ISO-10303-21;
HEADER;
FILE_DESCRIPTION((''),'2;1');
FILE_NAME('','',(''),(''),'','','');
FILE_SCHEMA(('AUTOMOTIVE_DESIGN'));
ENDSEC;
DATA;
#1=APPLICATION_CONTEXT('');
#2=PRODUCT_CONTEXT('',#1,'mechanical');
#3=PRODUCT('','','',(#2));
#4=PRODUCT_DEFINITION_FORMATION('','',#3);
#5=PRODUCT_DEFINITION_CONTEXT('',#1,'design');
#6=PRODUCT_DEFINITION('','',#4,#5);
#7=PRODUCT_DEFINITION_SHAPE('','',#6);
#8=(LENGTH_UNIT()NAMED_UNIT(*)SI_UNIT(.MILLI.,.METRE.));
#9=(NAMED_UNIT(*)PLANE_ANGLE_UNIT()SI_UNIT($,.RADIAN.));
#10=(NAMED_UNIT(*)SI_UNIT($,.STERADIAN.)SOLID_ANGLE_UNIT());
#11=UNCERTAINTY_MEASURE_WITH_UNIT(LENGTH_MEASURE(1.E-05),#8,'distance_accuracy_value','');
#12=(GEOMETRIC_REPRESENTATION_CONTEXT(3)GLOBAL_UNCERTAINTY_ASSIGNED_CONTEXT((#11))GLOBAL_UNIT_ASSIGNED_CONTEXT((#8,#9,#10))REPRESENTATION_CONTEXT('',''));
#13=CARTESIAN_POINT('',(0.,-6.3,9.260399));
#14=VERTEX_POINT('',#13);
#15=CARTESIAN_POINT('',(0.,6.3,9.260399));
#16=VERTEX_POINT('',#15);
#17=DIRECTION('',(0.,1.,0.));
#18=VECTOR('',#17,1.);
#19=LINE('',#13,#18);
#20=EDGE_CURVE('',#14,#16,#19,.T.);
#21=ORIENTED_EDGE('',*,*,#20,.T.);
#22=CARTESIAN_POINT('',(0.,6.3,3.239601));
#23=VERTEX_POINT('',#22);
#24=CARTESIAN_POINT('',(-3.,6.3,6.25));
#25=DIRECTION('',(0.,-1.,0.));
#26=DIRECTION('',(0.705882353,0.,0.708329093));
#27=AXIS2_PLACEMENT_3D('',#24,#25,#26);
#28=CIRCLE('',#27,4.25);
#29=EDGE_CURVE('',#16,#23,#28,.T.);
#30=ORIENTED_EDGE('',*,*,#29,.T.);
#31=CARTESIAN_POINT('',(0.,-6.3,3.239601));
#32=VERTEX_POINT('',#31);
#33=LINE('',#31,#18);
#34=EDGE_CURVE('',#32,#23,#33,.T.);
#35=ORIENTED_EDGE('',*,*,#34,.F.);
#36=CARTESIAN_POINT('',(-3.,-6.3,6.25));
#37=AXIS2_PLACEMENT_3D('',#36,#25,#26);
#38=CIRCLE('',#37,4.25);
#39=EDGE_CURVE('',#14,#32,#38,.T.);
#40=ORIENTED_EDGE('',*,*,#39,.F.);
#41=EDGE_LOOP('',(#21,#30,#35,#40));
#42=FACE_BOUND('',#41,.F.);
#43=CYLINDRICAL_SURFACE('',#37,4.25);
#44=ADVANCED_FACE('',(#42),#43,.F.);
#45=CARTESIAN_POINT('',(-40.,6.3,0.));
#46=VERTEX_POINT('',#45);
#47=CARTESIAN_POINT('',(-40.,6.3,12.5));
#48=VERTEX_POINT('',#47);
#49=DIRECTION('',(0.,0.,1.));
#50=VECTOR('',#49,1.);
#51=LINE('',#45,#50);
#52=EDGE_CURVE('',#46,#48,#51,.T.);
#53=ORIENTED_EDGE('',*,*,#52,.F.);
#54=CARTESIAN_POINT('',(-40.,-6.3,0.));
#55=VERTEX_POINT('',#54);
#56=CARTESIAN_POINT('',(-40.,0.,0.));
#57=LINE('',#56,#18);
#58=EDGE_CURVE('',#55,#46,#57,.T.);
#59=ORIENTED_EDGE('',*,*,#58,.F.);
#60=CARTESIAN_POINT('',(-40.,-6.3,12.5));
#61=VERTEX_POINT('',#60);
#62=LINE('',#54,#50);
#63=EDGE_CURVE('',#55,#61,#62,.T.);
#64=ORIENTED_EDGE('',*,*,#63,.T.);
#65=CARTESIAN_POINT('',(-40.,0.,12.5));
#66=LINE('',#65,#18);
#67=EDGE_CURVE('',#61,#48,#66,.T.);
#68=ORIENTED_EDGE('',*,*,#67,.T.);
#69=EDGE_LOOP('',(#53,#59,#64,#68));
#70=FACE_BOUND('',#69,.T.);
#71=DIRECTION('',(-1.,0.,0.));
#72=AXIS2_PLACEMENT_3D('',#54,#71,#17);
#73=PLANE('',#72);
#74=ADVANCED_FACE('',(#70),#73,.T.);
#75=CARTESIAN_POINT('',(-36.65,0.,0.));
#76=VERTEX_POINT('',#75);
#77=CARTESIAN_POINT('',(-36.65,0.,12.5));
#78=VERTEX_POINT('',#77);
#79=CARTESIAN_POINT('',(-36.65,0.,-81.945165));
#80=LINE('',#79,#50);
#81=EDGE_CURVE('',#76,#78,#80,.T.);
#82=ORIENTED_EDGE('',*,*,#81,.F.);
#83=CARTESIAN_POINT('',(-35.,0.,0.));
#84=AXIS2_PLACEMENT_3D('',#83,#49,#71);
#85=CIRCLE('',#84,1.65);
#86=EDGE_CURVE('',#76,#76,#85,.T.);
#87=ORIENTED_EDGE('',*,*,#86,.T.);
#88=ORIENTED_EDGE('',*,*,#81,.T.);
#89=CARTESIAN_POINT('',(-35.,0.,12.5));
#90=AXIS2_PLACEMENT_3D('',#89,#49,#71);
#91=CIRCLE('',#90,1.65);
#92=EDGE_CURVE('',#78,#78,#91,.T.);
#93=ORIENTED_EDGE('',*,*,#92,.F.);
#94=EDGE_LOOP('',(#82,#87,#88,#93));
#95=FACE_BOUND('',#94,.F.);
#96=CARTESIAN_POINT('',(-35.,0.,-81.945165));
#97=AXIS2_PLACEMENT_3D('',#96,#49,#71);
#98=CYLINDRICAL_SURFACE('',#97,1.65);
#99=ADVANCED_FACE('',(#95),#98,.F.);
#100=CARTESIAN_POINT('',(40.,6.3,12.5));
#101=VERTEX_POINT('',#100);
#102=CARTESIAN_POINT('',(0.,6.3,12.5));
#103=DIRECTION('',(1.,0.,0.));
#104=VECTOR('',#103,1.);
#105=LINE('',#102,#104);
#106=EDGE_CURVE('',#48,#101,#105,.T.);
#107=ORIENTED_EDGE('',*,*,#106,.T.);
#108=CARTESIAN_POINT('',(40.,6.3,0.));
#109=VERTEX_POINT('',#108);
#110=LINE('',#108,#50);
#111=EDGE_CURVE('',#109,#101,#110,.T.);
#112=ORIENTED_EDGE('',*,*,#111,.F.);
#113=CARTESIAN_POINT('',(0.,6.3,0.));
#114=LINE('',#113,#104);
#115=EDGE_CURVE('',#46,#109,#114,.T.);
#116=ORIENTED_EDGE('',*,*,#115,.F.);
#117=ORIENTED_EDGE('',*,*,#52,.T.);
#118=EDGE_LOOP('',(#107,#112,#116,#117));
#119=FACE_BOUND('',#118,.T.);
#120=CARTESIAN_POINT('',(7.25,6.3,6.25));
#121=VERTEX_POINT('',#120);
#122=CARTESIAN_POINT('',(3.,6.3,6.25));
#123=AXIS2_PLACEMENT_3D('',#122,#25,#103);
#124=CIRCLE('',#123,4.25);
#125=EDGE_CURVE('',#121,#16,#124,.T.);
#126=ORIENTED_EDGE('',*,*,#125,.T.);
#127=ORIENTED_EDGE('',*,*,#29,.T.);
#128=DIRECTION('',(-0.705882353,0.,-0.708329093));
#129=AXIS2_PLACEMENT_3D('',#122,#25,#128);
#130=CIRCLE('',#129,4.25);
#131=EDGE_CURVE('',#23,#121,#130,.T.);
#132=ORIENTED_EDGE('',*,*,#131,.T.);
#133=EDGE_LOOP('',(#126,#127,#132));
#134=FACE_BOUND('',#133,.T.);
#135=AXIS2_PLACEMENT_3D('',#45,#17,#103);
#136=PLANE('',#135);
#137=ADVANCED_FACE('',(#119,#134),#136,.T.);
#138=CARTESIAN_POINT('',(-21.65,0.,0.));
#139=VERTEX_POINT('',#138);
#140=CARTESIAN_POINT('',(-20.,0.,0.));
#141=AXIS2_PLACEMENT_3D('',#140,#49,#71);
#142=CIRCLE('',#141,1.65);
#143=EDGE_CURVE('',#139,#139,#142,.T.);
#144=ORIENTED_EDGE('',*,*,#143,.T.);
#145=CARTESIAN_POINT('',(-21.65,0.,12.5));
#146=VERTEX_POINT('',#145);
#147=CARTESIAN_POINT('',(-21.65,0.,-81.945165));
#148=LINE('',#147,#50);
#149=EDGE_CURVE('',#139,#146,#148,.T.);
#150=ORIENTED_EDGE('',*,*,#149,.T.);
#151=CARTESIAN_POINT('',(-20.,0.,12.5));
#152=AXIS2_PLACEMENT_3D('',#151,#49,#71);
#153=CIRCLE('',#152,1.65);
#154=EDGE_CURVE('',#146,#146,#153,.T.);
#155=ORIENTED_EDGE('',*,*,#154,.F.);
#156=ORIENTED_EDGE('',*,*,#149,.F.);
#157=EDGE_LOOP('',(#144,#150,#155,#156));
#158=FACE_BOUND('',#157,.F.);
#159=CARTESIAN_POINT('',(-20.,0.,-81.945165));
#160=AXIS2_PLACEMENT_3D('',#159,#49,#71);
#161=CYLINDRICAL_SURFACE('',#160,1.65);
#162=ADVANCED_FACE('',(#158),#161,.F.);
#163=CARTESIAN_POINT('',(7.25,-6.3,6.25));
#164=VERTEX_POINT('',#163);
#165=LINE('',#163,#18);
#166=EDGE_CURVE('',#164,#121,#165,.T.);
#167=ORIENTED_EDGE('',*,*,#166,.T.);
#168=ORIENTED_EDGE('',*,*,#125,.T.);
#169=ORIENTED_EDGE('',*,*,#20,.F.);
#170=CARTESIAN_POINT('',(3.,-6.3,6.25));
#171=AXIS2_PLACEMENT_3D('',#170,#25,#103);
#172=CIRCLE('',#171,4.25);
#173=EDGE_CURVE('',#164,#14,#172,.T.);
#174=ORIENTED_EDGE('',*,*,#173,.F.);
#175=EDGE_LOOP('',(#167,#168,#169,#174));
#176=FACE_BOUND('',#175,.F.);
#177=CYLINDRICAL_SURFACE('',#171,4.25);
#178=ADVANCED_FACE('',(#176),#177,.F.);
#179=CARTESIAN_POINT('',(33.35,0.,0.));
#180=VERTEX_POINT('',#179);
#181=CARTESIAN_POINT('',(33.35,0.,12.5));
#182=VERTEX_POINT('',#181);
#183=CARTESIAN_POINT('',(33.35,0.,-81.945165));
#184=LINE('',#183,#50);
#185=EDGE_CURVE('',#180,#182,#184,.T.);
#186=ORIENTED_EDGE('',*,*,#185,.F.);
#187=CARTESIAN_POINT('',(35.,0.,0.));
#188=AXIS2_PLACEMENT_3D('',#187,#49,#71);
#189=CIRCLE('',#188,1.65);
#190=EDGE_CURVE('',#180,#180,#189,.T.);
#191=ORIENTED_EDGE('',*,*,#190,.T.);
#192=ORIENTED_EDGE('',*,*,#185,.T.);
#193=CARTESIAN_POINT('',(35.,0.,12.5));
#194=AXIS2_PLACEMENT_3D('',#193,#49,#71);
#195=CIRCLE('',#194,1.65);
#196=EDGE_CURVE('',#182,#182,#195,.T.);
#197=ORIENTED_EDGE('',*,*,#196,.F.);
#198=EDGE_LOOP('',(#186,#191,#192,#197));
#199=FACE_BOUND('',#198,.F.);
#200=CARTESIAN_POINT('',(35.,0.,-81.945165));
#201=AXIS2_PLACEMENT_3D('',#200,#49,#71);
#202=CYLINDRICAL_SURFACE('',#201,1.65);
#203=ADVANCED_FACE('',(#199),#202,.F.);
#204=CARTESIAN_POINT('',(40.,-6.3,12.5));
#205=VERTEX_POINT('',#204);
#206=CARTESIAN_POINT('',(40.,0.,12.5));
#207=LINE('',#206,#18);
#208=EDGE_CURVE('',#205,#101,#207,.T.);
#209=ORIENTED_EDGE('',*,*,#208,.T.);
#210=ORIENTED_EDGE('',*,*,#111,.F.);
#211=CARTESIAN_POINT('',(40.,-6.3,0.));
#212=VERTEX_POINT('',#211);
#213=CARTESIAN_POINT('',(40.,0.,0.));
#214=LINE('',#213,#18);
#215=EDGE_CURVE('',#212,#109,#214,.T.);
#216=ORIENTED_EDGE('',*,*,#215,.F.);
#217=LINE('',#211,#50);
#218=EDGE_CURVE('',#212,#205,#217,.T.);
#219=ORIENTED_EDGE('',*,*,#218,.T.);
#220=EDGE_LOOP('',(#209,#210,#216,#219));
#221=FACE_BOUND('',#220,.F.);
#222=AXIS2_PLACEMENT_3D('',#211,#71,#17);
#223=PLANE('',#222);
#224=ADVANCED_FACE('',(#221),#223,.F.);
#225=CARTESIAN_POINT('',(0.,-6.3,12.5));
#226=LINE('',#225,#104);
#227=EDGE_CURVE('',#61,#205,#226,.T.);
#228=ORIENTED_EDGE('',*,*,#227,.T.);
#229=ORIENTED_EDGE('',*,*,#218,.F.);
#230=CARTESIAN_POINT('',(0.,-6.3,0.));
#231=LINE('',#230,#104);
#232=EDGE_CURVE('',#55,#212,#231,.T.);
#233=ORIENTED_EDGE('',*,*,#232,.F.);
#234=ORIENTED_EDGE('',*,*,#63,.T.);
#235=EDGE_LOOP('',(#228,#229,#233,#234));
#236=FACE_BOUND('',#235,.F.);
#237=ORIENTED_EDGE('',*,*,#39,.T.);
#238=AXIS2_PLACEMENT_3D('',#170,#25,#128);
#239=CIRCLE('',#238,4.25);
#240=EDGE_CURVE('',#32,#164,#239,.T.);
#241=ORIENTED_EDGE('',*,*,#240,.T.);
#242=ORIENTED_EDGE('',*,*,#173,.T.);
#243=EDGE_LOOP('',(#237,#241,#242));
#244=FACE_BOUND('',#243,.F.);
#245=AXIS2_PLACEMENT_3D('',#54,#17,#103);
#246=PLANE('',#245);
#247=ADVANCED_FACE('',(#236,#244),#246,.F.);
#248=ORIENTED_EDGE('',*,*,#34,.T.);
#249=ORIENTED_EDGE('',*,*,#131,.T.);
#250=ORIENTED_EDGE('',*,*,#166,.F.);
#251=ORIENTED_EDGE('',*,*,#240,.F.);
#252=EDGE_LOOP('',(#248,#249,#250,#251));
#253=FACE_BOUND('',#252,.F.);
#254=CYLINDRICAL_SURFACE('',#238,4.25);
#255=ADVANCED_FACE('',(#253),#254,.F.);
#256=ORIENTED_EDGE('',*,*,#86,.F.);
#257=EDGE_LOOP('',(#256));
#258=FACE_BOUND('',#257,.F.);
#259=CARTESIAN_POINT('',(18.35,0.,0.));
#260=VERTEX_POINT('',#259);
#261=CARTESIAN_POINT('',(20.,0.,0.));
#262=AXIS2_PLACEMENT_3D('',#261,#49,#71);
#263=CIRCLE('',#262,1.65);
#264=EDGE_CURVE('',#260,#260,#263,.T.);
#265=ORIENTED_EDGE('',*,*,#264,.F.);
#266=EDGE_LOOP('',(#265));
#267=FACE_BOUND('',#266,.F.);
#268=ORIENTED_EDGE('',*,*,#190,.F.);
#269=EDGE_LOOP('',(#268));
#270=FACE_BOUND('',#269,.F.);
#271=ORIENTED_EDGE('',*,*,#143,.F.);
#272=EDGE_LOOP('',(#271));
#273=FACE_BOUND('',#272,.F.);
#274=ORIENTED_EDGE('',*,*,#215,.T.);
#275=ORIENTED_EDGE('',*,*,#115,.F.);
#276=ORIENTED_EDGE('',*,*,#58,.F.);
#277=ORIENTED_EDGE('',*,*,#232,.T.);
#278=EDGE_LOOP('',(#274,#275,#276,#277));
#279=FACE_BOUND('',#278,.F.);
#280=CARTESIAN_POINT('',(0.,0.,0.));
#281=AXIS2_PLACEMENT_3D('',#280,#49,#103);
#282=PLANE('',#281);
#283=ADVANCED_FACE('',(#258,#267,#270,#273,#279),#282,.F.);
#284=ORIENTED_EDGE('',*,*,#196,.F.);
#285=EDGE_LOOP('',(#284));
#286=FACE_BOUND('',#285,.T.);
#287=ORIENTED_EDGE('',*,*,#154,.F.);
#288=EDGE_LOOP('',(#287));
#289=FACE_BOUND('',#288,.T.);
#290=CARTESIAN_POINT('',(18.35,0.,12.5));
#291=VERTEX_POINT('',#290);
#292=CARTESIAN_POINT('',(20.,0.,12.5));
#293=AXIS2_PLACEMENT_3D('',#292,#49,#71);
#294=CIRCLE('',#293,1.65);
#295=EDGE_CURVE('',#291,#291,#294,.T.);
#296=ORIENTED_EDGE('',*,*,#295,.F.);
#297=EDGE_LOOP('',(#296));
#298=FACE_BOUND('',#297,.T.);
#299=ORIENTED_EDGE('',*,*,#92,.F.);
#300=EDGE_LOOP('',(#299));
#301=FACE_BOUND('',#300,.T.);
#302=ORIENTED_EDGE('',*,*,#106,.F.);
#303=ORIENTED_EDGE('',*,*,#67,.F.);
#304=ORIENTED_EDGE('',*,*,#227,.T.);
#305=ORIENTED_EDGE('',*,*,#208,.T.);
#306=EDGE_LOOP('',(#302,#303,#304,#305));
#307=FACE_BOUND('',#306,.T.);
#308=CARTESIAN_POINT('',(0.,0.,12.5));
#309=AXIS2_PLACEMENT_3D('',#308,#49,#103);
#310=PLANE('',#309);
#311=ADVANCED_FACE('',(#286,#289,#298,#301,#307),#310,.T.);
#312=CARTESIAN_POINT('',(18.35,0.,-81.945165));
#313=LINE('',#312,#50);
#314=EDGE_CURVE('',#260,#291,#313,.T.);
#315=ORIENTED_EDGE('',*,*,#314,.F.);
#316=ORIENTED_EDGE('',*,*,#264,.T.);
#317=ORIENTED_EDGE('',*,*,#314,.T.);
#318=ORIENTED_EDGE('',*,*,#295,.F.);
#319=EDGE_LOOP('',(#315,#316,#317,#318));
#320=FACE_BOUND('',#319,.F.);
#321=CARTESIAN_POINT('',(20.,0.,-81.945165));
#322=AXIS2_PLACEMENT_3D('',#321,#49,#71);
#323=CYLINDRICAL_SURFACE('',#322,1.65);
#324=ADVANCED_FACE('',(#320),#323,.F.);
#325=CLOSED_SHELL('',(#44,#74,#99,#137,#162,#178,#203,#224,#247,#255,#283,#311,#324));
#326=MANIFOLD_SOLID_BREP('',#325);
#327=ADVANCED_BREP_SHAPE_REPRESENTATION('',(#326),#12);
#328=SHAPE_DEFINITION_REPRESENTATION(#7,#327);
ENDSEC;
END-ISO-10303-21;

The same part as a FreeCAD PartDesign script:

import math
import FreeCAD as App
import Part
import Sketcher
from FreeCAD import Vector
Q = App.Units.Quantity


def add_polygon(sketch, points):
    """Adds a closed chain of lines whose ends are joined by coincident constraints."""
    first, n = sketch.GeometryCount, len(points)
    for a, b in zip(points, points[1:] + points[:1]):
        sketch.addGeometry(Part.LineSegment(App.Vector(*a, 0), App.Vector(*b, 0)), False)
    for i in range(n):
        sketch.addConstraint(Sketcher.Constraint("Coincident", first + i, 2, first + (i + 1) % n, 1))

doc = App.newDocument("Part")
body = doc.addObject("PartDesign::Body", "Body")

sketch1 = doc.addObject("Sketcher::SketchObject", "Sketch")
body.addObject(sketch1)
sketch1.AttachmentSupport = (doc.XY_Plane, [""])
sketch1.MapMode = "FlatFace"
add_polygon(sketch1, [(-40, 6), (-40, -6), (40, -6), (40, 6)])
sketch1.addConstraint(Sketcher.Constraint("Vertical", 0))
sketch1.addConstraint(Sketcher.Constraint("Horizontal", 1))
sketch1.addConstraint(Sketcher.Constraint("Vertical", 2))
sketch1.addConstraint(Sketcher.Constraint("Horizontal", 3))
sketch1.addConstraint(Sketcher.Constraint("Symmetric", 0, 2, 2, 2, -1, 1))
sketch1.addConstraint(Sketcher.Constraint("DistanceX", 1, 1, 1, 2, Q("80 mm")))
sketch1.addConstraint(Sketcher.Constraint("DistanceY", 0, 2, 0, 1, Q("12.6 mm")))
pad1 = doc.addObject("PartDesign::Pad", "Pad")
body.addObject(pad1)
pad1.Profile = sketch1
pad1.Length = 12.5

sketch2 = doc.addObject("Sketcher::SketchObject", "Sketch001")
body.addObject(sketch2)
sketch2.AttachmentSupport = (doc.XZ_Plane, [""])
sketch2.MapMode = "FlatFace"
sketch2.AttachmentOffset = App.Placement(Vector(0, 0, 6.3), App.Rotation())
sketch2.addGeometry(Part.ArcOfCircle(Part.Circle(Vector(3, 6.2, 0), Vector(0, 0, 1), 4.2), math.radians(-135), math.radians(0)), False)
sketch2.addGeometry(Part.ArcOfCircle(Part.Circle(Vector(3, 6.2, 0), Vector(0, 0, 1), 4.2), math.radians(0), math.radians(135)), False)
sketch2.addGeometry(Part.ArcOfCircle(Part.Circle(Vector(-3, 6.2, 0), Vector(0, 0, 1), 4.2), math.radians(45), math.radians(315)), False)
sketch2.addConstraint(Sketcher.Constraint("Tangent", 0, 2, 1, 1))
sketch2.addConstraint(Sketcher.Constraint("Coincident", 1, 2, 2, 1))
sketch2.addConstraint(Sketcher.Constraint("Coincident", 2, 2, 0, 1))
sketch2.addConstraint(Sketcher.Constraint("Equal", 0, 1))
sketch2.addConstraint(Sketcher.Constraint("Equal", 1, 2))
sketch2.addConstraint(Sketcher.Constraint("Symmetric", 0, 3, 2, 3, -2))
sketch2.addConstraint(Sketcher.Constraint("Horizontal", 2, 3, 0, 2))
sketch2.addConstraint(Sketcher.Constraint("Radius", 0, Q("4.25 mm")))
sketch2.addConstraint(Sketcher.Constraint("DistanceX", -1, 1, 0, 3, Q("3 mm")))
sketch2.addConstraint(Sketcher.Constraint("DistanceY", -1, 1, 0, 3, Q("6.25 mm")))
pocket1 = doc.addObject("PartDesign::Pocket", "Pocket")
body.addObject(pocket1)
pocket1.Profile = sketch2
pocket1.Type = "ThroughAll"

sketch3 = doc.addObject("Sketcher::SketchObject", "Sketch002")
body.addObject(sketch3)
sketch3.AttachmentSupport = (doc.XY_Plane, [""])
sketch3.MapMode = "FlatFace"
sketch3.addGeometry(Part.Circle(Vector(-20, 0, 0), Vector(0, 0, 1), 1.6), False)
sketch3.addGeometry(Part.Circle(Vector(-35, 0, 0), Vector(0, 0, 1), 1.6), False)
sketch3.addGeometry(Part.Circle(Vector(20, 0, 0), Vector(0, 0, 1), 1.6), False)
sketch3.addGeometry(Part.Circle(Vector(35, 0, 0), Vector(0, 0, 1), 1.6), False)
sketch3.addConstraint(Sketcher.Constraint("Equal", 0, 1))
sketch3.addConstraint(Sketcher.Constraint("Equal", 1, 2))
sketch3.addConstraint(Sketcher.Constraint("Equal", 2, 3))
sketch3.addConstraint(Sketcher.Constraint("Symmetric", 0, 3, 2, 3, -1, 1))
sketch3.addConstraint(Sketcher.Constraint("Symmetric", 1, 3, 3, 3, -1, 1))
sketch3.addConstraint(Sketcher.Constraint("PointOnObject", 0, 3, -1))
sketch3.addConstraint(Sketcher.Constraint("PointOnObject", 1, 3, -1))
sketch3.addConstraint(Sketcher.Constraint("Diameter", 0, Q("3.3 mm")))
sketch3.addConstraint(Sketcher.Constraint("DistanceX", 0, 3, -1, 1, Q("20 mm")))
sketch3.addConstraint(Sketcher.Constraint("DistanceX", 1, 3, -1, 1, Q("35 mm")))
doc.recompute()
hole = doc.addObject("PartDesign::Hole", "Hole")
body.addObject(hole)
hole.Profile = sketch3
hole.ThreadType = "None"
hole.Diameter = 3.3
hole.DepthType = "ThroughAll"
hole.Reversed = True

doc.recompute()
